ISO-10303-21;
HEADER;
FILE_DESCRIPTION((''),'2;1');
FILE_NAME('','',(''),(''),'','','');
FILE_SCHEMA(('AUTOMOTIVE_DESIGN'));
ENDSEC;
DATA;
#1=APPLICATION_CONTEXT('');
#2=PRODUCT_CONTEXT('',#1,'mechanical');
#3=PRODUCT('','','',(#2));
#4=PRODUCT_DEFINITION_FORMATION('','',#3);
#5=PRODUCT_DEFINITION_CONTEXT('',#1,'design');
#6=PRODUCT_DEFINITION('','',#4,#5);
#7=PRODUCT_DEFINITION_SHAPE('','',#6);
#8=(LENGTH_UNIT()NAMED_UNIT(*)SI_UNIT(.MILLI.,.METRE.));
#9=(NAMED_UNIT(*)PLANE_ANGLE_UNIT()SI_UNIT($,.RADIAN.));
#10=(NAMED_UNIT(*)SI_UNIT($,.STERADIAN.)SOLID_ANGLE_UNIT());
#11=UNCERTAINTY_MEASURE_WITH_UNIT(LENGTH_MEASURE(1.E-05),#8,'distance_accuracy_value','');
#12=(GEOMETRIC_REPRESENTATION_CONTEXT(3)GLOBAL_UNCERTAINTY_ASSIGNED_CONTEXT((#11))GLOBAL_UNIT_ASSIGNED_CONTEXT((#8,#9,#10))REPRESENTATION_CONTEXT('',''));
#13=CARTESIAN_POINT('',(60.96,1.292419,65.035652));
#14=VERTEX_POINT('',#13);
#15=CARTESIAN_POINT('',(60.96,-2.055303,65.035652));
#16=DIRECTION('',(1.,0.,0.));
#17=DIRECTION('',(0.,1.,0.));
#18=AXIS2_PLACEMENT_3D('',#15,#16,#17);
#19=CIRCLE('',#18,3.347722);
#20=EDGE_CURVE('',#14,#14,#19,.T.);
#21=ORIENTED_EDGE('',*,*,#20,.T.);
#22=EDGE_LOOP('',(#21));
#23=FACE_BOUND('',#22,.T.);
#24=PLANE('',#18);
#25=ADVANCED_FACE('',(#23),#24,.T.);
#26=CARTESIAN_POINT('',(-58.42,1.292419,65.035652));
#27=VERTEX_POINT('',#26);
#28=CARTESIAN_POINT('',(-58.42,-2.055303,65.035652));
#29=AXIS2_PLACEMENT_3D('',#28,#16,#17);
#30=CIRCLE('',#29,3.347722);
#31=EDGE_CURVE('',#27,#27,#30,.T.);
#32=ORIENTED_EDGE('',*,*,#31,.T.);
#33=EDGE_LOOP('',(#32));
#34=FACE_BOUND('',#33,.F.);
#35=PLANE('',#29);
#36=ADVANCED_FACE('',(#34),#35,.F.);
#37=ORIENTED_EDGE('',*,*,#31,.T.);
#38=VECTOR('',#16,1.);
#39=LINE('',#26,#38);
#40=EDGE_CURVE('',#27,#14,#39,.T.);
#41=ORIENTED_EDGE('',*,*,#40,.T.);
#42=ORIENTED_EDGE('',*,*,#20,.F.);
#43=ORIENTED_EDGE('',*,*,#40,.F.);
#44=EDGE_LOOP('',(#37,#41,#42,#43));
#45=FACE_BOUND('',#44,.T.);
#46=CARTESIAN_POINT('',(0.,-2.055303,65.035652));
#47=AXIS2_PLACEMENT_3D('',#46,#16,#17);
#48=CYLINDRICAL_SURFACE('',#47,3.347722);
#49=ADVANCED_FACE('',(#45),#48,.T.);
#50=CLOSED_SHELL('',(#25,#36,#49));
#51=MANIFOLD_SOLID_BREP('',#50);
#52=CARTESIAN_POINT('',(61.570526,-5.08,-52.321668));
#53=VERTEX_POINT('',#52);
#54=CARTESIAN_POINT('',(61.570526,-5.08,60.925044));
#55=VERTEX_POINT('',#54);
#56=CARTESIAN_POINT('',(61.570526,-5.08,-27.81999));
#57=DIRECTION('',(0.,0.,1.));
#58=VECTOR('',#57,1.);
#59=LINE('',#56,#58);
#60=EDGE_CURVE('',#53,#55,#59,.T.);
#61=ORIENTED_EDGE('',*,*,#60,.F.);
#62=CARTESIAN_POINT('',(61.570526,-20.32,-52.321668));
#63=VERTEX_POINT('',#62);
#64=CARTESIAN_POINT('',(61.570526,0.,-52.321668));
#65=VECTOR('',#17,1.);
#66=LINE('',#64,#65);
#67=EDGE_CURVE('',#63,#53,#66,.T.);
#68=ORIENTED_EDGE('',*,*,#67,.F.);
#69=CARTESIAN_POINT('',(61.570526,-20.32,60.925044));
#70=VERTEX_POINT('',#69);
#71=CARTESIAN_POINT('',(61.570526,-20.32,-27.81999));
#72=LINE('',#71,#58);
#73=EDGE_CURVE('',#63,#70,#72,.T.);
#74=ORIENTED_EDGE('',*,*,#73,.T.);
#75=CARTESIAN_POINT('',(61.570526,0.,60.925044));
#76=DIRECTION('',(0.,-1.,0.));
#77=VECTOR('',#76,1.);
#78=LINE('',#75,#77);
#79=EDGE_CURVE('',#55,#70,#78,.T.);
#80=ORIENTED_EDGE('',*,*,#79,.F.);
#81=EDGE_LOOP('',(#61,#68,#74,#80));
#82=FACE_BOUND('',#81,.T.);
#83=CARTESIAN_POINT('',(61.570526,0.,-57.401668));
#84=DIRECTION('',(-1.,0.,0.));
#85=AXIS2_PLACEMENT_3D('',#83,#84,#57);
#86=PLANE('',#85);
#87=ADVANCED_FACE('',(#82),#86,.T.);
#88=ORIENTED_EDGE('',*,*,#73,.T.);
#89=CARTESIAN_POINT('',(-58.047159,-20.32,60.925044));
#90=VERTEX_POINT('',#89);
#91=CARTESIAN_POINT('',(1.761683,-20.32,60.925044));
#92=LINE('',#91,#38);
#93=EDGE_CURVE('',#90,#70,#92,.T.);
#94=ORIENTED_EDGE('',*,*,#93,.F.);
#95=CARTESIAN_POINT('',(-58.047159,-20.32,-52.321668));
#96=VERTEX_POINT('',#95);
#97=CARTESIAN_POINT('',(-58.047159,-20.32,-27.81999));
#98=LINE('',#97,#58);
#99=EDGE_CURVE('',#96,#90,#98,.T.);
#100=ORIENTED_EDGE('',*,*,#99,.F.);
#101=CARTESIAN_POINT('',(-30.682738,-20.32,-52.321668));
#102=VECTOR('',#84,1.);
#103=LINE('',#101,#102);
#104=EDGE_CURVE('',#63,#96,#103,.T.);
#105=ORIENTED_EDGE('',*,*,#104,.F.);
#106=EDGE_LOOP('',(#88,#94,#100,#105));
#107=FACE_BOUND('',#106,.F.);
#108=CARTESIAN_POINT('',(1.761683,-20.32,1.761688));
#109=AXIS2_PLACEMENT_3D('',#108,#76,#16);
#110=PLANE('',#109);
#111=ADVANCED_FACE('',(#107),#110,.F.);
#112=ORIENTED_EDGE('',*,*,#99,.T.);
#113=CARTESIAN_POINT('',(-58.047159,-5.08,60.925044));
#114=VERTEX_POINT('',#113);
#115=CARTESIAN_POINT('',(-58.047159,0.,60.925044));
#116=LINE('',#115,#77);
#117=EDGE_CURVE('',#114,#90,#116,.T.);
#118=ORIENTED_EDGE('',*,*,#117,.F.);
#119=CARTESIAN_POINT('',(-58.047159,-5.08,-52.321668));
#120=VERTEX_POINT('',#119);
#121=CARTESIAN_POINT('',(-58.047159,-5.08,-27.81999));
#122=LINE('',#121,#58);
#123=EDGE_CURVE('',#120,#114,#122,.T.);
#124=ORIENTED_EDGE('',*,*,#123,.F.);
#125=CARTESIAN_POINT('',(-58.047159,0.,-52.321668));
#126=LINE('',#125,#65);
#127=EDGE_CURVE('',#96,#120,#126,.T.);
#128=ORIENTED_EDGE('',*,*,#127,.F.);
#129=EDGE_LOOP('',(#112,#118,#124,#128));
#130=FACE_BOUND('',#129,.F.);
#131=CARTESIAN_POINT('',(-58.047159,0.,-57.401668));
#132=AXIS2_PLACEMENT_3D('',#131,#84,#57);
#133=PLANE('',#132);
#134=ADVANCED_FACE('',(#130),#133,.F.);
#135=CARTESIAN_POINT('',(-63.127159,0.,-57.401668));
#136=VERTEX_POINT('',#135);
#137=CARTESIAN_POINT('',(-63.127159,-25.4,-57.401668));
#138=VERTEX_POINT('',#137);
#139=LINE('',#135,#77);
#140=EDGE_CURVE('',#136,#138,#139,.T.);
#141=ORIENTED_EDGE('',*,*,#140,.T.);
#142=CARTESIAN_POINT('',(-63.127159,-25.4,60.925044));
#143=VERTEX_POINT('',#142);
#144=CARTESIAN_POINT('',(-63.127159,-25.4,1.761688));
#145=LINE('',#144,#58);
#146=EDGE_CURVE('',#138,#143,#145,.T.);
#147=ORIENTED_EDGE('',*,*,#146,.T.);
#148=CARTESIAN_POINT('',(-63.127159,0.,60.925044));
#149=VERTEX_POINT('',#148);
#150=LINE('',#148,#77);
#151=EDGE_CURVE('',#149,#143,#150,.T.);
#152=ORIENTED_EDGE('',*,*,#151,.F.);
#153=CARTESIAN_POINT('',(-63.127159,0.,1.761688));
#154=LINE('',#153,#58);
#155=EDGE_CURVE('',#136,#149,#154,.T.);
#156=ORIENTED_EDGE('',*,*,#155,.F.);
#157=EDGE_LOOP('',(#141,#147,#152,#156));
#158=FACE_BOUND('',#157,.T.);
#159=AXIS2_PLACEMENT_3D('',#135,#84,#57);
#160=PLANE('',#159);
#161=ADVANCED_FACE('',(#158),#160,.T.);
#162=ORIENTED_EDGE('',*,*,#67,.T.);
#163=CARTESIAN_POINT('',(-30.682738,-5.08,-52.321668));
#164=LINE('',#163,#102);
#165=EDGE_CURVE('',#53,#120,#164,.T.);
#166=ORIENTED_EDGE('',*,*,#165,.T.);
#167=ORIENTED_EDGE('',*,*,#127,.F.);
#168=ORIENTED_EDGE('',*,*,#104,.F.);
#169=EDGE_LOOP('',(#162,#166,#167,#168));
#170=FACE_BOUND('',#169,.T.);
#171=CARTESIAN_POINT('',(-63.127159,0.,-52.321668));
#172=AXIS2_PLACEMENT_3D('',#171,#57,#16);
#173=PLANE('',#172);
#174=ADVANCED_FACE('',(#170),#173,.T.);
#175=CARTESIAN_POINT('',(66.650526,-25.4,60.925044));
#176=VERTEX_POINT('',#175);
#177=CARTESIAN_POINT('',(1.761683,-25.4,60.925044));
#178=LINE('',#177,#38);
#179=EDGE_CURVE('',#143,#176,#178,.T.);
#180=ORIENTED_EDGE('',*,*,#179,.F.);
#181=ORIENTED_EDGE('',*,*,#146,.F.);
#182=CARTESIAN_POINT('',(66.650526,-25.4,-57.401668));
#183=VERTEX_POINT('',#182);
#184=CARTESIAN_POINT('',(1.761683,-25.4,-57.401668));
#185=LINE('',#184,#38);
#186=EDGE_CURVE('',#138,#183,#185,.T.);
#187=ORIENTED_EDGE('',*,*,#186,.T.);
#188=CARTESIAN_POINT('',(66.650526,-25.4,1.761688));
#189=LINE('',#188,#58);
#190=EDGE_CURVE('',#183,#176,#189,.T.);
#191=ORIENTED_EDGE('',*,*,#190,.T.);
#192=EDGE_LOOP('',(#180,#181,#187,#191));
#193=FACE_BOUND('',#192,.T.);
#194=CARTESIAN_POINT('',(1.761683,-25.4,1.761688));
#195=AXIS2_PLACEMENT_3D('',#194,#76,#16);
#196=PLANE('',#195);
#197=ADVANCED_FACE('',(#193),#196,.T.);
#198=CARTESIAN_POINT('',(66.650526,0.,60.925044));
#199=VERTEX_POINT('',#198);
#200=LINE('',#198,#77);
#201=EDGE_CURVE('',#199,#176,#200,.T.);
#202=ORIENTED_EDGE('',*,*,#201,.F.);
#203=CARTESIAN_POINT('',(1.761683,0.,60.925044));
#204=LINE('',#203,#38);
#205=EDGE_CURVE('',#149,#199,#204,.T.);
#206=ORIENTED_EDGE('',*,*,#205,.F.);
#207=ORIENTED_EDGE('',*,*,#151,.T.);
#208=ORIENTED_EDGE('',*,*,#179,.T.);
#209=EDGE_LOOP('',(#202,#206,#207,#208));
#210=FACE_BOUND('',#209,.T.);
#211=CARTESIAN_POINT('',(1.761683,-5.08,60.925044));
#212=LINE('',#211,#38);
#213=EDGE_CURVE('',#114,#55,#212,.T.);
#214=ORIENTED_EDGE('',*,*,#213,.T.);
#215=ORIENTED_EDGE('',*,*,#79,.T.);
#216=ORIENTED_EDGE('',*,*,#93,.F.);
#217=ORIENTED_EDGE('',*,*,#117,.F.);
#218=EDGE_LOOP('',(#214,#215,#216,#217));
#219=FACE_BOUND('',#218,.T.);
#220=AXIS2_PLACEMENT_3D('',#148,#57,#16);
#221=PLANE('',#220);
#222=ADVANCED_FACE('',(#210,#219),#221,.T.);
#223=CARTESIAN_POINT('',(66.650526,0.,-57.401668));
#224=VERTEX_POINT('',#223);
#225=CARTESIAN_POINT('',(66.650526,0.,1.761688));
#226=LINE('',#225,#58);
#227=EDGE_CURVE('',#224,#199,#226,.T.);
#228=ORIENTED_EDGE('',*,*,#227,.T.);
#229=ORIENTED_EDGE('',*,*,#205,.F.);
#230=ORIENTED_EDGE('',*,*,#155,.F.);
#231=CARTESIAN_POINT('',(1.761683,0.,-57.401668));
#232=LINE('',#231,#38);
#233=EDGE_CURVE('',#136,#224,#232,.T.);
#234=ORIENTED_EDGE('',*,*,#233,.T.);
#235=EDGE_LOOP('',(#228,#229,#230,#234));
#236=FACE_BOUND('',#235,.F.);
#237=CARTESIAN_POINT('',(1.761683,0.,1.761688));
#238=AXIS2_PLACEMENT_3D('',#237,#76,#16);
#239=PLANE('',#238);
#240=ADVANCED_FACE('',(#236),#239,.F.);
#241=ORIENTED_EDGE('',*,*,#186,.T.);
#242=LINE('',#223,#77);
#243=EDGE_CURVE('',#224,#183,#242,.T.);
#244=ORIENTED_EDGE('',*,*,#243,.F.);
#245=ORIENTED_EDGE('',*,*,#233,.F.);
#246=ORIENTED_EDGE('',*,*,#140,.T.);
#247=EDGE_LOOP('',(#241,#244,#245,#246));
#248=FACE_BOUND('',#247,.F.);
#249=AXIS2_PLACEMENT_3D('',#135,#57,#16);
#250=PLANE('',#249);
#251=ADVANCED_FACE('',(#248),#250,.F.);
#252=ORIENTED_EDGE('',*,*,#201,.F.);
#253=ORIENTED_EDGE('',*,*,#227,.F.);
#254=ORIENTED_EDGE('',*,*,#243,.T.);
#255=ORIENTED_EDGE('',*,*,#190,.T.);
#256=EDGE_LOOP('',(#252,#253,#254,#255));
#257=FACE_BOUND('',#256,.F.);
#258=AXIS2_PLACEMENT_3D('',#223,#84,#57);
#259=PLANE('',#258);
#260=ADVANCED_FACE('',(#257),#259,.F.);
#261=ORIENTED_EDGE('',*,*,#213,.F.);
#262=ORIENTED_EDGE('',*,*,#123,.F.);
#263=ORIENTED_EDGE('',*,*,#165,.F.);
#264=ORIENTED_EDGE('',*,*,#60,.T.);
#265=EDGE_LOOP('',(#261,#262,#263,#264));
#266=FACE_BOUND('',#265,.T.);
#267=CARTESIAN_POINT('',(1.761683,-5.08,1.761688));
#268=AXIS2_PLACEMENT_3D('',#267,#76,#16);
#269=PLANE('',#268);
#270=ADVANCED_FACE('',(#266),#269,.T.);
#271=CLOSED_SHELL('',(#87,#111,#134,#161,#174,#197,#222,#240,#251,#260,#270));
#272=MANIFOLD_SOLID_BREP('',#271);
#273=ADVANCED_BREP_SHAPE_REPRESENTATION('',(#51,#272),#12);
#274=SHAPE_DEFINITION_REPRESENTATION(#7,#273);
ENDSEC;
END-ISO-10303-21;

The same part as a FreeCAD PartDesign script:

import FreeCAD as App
import Part
import Sketcher

V = App.Vector
Q = App.Units.Quantity


def faces_at(feature, points):
    """Names of the faces that lie closest to the given points."""
    faces = feature.Shape.Faces
    near = lambda p: min(range(len(faces)), key=lambda i: faces[i].distToShape(Part.Vertex(*p))[0])
    return sorted({f"Face{near(p) + 1}" for p in points})

doc = App.newDocument("Part")
body = doc.addObject("PartDesign::Body", "Body")

sketch1 = doc.addObject("Sketcher::SketchObject", "Sketch")
body.addObject(sketch1)
sketch1.AttachmentSupport = (doc.XZ_Plane, [""])
sketch1.MapMode = "FlatFace"
sketch1.addGeometry([
    Part.LineSegment(V(-63, 61, 0), V(-63, -57, 0)),
    Part.LineSegment(V(-63, -57, 0), V(67, -57, 0)),
    Part.LineSegment(V(67, -57, 0), V(67, 61, 0)),
    Part.LineSegment(V(67, 61, 0), V(-63, 61, 0)),
], False)
sketch1.addConstraint([
    Sketcher.Constraint("Coincident", 0, 2, 1, 1),
    Sketcher.Constraint("Coincident", 1, 2, 2, 1),
    Sketcher.Constraint("Coincident", 2, 2, 3, 1),
    Sketcher.Constraint("Coincident", 3, 2, 0, 1),
    Sketcher.Constraint("Vertical", 0),
    Sketcher.Constraint("Horizontal", 1),
    Sketcher.Constraint("Vertical", 2),
    Sketcher.Constraint("Horizontal", 3),
    Sketcher.Constraint("DistanceY", 0, 2, 0, 1, Q("118.326712 mm")),
    Sketcher.Constraint("DistanceX", 1, 1, 1, 2, Q("129.777685 mm")),
    Sketcher.Constraint("DistanceX", 0, 2, -1, 1, Q("63.127159 mm")),
    Sketcher.Constraint("DistanceY", 0, 2, -1, 1, Q("57.401668 mm")),
])
pad1 = doc.addObject("PartDesign::Pad", "Pad")
body.addObject(pad1)
pad1.Profile = sketch1
pad1.Length = Q("1 in")
doc.recompute()

thickness = doc.addObject("PartDesign::Thickness", "Thickness")
body.addObject(thickness)
thickness.Base = (pad1, faces_at(pad1, [(1.762, -12.7, 60.925)]))
thickness.Value = Q("0.2 in")
thickness.Reversed = True
thickness.Join = "Arc"
body2 = doc.addObject("PartDesign::Body", "Body001")

sketch2 = doc.addObject("Sketcher::SketchObject", "Sketch001")
body2.addObject(sketch2)
sketch2.AttachmentSupport = (doc.getObject("YZ_Plane001"), [""])
sketch2.MapMode = "FlatFace"
sketch2.addGeometry(Part.Circle(V(-2.1, 65, 0), V(0, 0, 1), 3.3), False)
sketch2.addConstraint([
    Sketcher.Constraint("Diameter", 0, Q("0.2636002 in")),
    Sketcher.Constraint("DistanceY", -1, 1, 0, 3, Q("65.035652 mm")),
    Sketcher.Constraint("DistanceX", 0, 3, -1, 1, Q("2.055303 mm")),
])
pad2 = doc.addObject("PartDesign::Pad", "Pad001")
body2.addObject(pad2)
pad2.Profile = sketch2
pad2.Type = "TwoLengths"
pad2.Length = Q("2.4 in")
pad2.Length2 = Q("2.3 in")

doc.recompute()
